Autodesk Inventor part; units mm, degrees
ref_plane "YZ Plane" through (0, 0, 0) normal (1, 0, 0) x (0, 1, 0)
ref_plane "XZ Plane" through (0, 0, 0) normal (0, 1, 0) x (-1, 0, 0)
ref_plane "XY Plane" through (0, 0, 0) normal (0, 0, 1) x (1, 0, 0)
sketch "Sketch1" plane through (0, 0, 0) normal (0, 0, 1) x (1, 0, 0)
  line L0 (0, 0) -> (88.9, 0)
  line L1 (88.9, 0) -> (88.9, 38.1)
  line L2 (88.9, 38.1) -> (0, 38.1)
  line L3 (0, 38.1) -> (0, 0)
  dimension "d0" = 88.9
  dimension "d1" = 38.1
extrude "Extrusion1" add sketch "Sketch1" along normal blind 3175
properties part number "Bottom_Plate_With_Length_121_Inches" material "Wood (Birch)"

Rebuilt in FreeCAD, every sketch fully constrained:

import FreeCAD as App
import Part
import Sketcher
from FreeCAD import Vector
Q = App.Units.Quantity

doc = App.newDocument("Part")
params = doc.addObject("Spreadsheet::Sheet", "Params")
for row, (alias, value) in enumerate([
    ("sketch1_width", "3.5 in"),
    ("sketch1_height", "1.5 in"),
    ("pad1_length", "125 in"),
], start=1):
    params.set(f"A{row}", alias)
    params.set(f"B{row}", "=" + value)
    params.setAlias(f"B{row}", alias)

body = doc.addObject("PartDesign::Body", "Body")

sketch1 = body.newObject("Sketcher::SketchObject", "Sketch")
sketch1.AttachmentSupport = (doc.getObject("XY_Plane"), [""])
sketch1.MapMode = "FlatFace"
sketch1.addGeometry(Part.LineSegment(Vector(0, 38, 0), Vector(0, 0, 0)), False)
sketch1.addGeometry(Part.LineSegment(Vector(0, 0, 0), Vector(89, 0, 0)), False)
sketch1.addGeometry(Part.LineSegment(Vector(89, 0, 0), Vector(89, 38, 0)), False)
sketch1.addGeometry(Part.LineSegment(Vector(89, 38, 0), Vector(0, 38, 0)), False)
sketch1.addConstraint(Sketcher.Constraint("Coincident", 0, 2, 1, 1))
sketch1.addConstraint(Sketcher.Constraint("Coincident", 1, 2, 2, 1))
sketch1.addConstraint(Sketcher.Constraint("Coincident", 2, 2, 3, 1))
sketch1.addConstraint(Sketcher.Constraint("Coincident", 3, 2, 0, 1))
sketch1.addConstraint(Sketcher.Constraint("Vertical", 0))
sketch1.addConstraint(Sketcher.Constraint("Horizontal", 1))
sketch1.addConstraint(Sketcher.Constraint("Vertical", 2))
sketch1.addConstraint(Sketcher.Constraint("Horizontal", 3))
sketch1.addConstraint(Sketcher.Constraint("Coincident", 0, 2, -1, 1))
sketch1.addConstraint(Sketcher.Constraint("DistanceX", 1, 1, 1, 2, Q("3.5 in")))
sketch1.addConstraint(Sketcher.Constraint("DistanceY", 0, 2, 0, 1, Q("1.5 in")))
sketch1.setExpression("Constraints[9]", "Params.sketch1_width")
sketch1.setExpression("Constraints[10]", "Params.sketch1_height")
pad1 = body.newObject("PartDesign::Pad", "Pad")
pad1.Profile = sketch1
pad1.setExpression("Length", "Params.pad1_length")

doc.recompute()
